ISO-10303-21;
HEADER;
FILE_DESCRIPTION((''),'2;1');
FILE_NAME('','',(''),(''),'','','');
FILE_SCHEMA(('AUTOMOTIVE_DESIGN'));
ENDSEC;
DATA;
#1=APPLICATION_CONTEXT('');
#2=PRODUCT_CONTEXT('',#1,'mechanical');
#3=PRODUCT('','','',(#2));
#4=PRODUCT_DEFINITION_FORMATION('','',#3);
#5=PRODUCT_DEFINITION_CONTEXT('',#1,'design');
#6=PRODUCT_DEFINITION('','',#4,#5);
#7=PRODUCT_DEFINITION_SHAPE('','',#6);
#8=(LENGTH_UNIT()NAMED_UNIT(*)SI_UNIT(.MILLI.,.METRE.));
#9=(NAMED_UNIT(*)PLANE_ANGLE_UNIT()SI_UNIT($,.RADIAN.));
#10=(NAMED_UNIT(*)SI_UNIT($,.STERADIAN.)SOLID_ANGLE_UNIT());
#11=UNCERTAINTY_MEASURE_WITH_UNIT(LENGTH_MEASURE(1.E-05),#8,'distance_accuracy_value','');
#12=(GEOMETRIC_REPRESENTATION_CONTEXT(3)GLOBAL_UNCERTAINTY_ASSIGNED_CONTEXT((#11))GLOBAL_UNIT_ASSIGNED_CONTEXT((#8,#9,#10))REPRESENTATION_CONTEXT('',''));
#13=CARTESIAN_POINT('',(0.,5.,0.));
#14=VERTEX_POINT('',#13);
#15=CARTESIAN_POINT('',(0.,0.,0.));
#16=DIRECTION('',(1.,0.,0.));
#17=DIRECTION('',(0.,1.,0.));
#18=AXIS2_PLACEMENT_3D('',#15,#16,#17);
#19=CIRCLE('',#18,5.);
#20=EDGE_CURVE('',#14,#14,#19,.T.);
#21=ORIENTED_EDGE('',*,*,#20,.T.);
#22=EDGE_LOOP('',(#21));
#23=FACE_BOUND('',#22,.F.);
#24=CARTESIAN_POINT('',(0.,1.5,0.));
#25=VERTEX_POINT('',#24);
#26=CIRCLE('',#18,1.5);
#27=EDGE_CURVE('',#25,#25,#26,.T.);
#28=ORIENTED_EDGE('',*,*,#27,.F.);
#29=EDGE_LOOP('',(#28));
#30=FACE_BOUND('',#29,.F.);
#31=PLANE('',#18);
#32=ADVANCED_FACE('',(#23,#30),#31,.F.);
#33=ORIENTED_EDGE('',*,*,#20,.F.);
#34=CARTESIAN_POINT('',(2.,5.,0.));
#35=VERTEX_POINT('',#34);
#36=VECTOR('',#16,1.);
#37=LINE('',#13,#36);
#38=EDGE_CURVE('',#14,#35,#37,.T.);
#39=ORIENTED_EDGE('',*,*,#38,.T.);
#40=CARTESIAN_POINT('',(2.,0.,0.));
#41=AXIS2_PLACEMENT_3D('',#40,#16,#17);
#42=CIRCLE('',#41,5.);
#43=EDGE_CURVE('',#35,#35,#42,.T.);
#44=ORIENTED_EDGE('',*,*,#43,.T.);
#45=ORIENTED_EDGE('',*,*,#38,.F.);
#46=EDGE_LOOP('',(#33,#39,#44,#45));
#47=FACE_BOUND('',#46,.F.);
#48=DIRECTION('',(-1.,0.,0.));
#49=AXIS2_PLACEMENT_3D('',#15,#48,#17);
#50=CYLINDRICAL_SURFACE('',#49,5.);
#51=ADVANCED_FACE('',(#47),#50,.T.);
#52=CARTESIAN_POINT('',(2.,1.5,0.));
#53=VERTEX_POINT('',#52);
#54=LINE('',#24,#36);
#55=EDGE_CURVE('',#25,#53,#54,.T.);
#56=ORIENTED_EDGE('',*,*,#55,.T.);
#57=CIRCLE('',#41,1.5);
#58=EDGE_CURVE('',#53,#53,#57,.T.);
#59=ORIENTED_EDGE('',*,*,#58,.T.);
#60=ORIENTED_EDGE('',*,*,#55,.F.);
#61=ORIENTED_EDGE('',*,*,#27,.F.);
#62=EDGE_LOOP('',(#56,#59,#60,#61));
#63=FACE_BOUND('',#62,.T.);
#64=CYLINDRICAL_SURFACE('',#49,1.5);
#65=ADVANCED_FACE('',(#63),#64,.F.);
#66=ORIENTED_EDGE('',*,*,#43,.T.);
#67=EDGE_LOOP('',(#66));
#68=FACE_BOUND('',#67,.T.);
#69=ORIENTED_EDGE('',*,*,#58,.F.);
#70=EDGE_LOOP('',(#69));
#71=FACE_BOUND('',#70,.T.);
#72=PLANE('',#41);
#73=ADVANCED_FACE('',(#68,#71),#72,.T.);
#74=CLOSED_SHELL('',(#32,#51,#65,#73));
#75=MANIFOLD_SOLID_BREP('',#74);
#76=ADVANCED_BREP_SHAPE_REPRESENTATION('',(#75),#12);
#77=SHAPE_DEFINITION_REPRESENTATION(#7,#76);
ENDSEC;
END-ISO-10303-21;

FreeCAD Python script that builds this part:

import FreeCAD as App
import Part
import Sketcher

V = App.Vector

doc = App.newDocument("Part")
body = doc.addObject("PartDesign::Body", "Body")

# Sketch on YZ plane
sketch1 = doc.addObject("Sketcher::SketchObject", "Sketch")
body.addObject(sketch1)
sketch1.AttachmentSupport = (doc.YZ_Plane, [""])
sketch1.MapMode = "FlatFace"
sketch1.addGeometry([
    Part.Circle(V(0, 0, 0), V(0, 0, 1), 5),
    Part.Circle(V(0, 0, 0), V(0, 0, 1), 1.5),
], False)
sketch1.addConstraint([
    Sketcher.Constraint("Coincident", 0, 3, -1, 1),
    Sketcher.Constraint("Coincident", 1, 3, -1, 1),
    Sketcher.Constraint("Diameter", 0, 10.0),
    Sketcher.Constraint("Diameter", 1, 3.0),
])
pad1 = doc.addObject("PartDesign::Pad", "Pad")
body.addObject(pad1)
pad1.Profile = sketch1
pad1.Length = 2

doc.recompute()
